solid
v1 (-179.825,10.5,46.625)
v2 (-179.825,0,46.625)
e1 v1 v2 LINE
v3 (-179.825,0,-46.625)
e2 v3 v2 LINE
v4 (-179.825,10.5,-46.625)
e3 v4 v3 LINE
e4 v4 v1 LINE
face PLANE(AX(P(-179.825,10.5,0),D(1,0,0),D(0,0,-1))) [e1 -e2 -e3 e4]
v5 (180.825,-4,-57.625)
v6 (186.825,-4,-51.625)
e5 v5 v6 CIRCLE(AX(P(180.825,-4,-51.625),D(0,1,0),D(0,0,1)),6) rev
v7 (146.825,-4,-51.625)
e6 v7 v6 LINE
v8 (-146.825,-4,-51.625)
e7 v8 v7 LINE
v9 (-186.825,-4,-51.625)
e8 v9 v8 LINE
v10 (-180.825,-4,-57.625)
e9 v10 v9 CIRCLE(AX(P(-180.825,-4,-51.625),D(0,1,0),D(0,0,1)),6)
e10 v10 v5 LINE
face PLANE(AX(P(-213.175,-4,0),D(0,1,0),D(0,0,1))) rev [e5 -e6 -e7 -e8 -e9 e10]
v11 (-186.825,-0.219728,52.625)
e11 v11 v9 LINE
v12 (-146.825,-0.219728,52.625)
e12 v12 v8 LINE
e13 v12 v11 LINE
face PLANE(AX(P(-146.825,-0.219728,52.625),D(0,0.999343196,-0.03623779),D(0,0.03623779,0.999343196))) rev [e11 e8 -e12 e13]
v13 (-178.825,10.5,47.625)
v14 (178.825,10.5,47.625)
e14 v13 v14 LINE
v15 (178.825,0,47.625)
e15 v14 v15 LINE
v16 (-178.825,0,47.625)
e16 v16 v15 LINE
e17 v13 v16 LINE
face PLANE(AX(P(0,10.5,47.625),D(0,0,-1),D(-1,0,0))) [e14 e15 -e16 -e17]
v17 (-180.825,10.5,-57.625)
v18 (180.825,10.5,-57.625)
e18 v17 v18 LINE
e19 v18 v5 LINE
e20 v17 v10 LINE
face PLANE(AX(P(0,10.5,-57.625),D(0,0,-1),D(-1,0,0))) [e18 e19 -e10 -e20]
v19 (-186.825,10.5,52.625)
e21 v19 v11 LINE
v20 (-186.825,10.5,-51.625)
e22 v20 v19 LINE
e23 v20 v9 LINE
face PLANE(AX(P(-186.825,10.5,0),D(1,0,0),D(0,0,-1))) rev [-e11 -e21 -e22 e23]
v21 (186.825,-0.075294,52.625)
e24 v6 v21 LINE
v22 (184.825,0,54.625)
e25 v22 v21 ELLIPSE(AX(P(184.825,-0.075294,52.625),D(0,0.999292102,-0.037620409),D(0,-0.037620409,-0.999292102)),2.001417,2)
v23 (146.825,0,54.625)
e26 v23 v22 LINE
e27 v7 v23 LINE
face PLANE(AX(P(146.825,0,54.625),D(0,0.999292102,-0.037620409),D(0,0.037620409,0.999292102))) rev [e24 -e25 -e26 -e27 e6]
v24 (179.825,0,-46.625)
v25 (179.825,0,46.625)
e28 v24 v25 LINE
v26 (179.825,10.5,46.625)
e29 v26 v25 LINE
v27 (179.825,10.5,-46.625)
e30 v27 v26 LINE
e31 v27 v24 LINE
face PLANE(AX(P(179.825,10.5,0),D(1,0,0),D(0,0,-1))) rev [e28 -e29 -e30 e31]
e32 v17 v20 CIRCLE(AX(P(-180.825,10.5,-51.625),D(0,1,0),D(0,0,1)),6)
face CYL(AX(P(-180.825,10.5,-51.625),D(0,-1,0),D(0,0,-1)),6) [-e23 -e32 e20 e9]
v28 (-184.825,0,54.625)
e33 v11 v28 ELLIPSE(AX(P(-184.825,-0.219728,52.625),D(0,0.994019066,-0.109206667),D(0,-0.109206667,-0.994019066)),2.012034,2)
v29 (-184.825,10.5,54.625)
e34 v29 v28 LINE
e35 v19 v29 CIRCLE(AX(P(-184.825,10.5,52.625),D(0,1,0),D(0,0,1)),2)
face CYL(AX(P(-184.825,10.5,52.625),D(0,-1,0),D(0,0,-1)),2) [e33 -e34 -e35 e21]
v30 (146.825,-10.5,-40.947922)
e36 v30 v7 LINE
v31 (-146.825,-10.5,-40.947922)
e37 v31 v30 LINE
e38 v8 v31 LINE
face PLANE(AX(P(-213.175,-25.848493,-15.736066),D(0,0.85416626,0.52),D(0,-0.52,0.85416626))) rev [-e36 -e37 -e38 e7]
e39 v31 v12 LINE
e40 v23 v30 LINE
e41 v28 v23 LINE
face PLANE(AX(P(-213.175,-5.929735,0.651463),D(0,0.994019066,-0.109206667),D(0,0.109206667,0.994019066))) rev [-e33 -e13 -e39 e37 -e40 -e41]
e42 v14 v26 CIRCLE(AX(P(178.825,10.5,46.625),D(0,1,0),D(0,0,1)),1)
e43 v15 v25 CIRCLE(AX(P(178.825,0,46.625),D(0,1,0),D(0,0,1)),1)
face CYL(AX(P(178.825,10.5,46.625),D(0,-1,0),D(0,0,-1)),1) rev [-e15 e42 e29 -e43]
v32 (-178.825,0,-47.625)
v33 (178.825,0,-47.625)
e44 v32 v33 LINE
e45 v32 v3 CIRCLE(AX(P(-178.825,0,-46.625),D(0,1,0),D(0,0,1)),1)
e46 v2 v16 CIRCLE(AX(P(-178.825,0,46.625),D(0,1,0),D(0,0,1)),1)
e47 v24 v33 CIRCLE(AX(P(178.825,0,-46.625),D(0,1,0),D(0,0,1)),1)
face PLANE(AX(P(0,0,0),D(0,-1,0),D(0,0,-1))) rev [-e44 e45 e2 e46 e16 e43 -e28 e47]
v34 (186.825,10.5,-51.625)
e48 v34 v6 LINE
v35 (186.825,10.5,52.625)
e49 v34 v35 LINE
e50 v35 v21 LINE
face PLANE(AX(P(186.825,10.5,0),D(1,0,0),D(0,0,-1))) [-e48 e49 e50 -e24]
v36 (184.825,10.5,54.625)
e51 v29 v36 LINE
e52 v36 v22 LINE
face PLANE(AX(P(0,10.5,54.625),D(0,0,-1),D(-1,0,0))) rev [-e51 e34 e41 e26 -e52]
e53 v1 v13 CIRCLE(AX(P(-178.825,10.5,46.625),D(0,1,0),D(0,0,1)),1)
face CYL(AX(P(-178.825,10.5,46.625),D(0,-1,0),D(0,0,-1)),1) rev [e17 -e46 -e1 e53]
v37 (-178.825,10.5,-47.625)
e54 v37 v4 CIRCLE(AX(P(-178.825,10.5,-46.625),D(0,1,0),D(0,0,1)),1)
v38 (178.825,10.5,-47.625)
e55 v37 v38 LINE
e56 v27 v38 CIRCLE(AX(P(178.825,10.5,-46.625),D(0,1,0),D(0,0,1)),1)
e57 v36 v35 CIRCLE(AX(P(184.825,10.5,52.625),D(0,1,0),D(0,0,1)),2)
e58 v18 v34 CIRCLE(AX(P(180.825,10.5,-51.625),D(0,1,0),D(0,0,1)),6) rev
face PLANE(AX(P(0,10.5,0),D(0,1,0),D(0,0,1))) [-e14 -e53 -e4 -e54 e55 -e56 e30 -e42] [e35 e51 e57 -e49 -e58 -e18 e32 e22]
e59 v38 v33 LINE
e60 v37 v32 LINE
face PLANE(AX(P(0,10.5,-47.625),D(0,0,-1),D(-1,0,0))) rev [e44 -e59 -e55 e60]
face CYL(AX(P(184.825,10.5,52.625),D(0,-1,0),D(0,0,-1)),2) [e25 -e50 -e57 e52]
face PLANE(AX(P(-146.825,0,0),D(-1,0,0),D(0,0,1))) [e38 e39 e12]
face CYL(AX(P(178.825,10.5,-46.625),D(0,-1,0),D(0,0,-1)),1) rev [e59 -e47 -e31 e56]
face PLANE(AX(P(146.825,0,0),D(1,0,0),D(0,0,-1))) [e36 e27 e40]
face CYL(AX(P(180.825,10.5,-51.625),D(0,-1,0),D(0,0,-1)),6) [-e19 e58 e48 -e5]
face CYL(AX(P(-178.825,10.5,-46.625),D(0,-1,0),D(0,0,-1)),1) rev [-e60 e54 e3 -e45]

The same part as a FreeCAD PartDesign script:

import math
import FreeCAD as App
import Part
import Sketcher
Q = App.Units.Quantity

doc = App.newDocument("Part")
body = doc.addObject("PartDesign::Body", "Body")

sketch1 = body.newObject("Sketcher::SketchObject", "Sketch")
sketch1.AttachmentSupport = (doc.getObject("XZ_Plane"), [""])
sketch1.MapMode = "FlatFace"
sketch1.addGeometry(Part.LineSegment(App.Vector(-186.8, -51.6, 0), App.Vector(-186.8, 52.6, 0)), False)
sketch1.addGeometry(Part.ArcOfCircle(Part.Circle(App.Vector(-184.8, 52.6, 0), App.Vector(0, 0, 1), 2), math.radians(90), math.radians(180)), False)
sketch1.addGeometry(Part.LineSegment(App.Vector(-184.8, 54.6, 0), App.Vector(184.8, 54.6, 0)), False)
sketch1.addGeometry(Part.ArcOfCircle(Part.Circle(App.Vector(184.8, 52.6, 0), App.Vector(0, 0, 1), 2), math.radians(0), math.radians(90)), False)
sketch1.addGeometry(Part.LineSegment(App.Vector(186.8, 52.6, 0), App.Vector(186.8, -51.6, 0)), False)
sketch1.addGeometry(Part.ArcOfCircle(Part.Circle(App.Vector(180.8, -51.6, 0), App.Vector(0, 0, 1), 6), math.radians(-90), math.radians(0)), False)
sketch1.addGeometry(Part.LineSegment(App.Vector(180.8, -57.6, 0), App.Vector(-180.8, -57.6, 0)), False)
sketch1.addGeometry(Part.ArcOfCircle(Part.Circle(App.Vector(-180.8, -51.6, 0), App.Vector(0, 0, 1), 6), math.radians(180), math.radians(270)), False)
sketch1.addGeometry(Part.ArcOfCircle(Part.Circle(App.Vector(-178.8, -46.6, 0), App.Vector(0, 0, 1), 1), math.radians(-180), math.radians(-90)), False)
sketch1.addGeometry(Part.LineSegment(App.Vector(-178.8, -47.6, 0), App.Vector(178.8, -47.6, 0)), False)
sketch1.addGeometry(Part.ArcOfCircle(Part.Circle(App.Vector(178.8, -46.6, 0), App.Vector(0, 0, 1), 1), math.radians(-90), math.radians(0)), False)
sketch1.addGeometry(Part.LineSegment(App.Vector(179.8, -46.6, 0), App.Vector(179.8, 46.6, 0)), False)
sketch1.addGeometry(Part.ArcOfCircle(Part.Circle(App.Vector(178.8, 46.6, 0), App.Vector(0, 0, 1), 1), math.radians(0), math.radians(90)), False)
sketch1.addGeometry(Part.LineSegment(App.Vector(178.8, 47.6, 0), App.Vector(-178.8, 47.6, 0)), False)
sketch1.addGeometry(Part.ArcOfCircle(Part.Circle(App.Vector(-178.8, 46.6, 0), App.Vector(0, 0, 1), 1), math.radians(90), math.radians(180)), False)
sketch1.addGeometry(Part.LineSegment(App.Vector(-179.8, 46.6, 0), App.Vector(-179.8, -46.6, 0)), False)
sketch1.addConstraint(Sketcher.Constraint("Tangent", 0, 2, 1, 2))
sketch1.addConstraint(Sketcher.Constraint("Tangent", 1, 1, 2, 1))
sketch1.addConstraint(Sketcher.Constraint("Tangent", 2, 2, 3, 2))
sketch1.addConstraint(Sketcher.Constraint("Tangent", 3, 1, 4, 1))
sketch1.addConstraint(Sketcher.Constraint("Tangent", 4, 2, 5, 2))
sketch1.addConstraint(Sketcher.Constraint("Tangent", 5, 1, 6, 1))
sketch1.addConstraint(Sketcher.Constraint("Tangent", 6, 2, 7, 2))
sketch1.addConstraint(Sketcher.Constraint("Tangent", 7, 1, 0, 1))
sketch1.addConstraint(Sketcher.Constraint("Tangent", 8, 2, 9, 1))
sketch1.addConstraint(Sketcher.Constraint("Tangent", 9, 2, 10, 1))
sketch1.addConstraint(Sketcher.Constraint("Tangent", 10, 2, 11, 1))
sketch1.addConstraint(Sketcher.Constraint("Tangent", 11, 2, 12, 1))
sketch1.addConstraint(Sketcher.Constraint("Tangent", 12, 2, 13, 1))
sketch1.addConstraint(Sketcher.Constraint("Tangent", 13, 2, 14, 1))
sketch1.addConstraint(Sketcher.Constraint("Tangent", 14, 2, 15, 1))
sketch1.addConstraint(Sketcher.Constraint("Tangent", 15, 2, 8, 1))
sketch1.addConstraint(Sketcher.Constraint("Vertical", 0))
sketch1.addConstraint(Sketcher.Constraint("Horizontal", 2))
sketch1.addConstraint(Sketcher.Constraint("Vertical", 4))
sketch1.addConstraint(Sketcher.Constraint("Horizontal", 6))
sketch1.addConstraint(Sketcher.Constraint("Horizontal", 9))
sketch1.addConstraint(Sketcher.Constraint("Vertical", 11))
sketch1.addConstraint(Sketcher.Constraint("Horizontal", 13))
sketch1.addConstraint(Sketcher.Constraint("Vertical", 15))
sketch1.addConstraint(Sketcher.Constraint("Equal", 1, 3))
sketch1.addConstraint(Sketcher.Constraint("Equal", 5, 7))
sketch1.addConstraint(Sketcher.Constraint("Equal", 8, 10))
sketch1.addConstraint(Sketcher.Constraint("Equal", 10, 12))
sketch1.addConstraint(Sketcher.Constraint("Equal", 12, 14))
sketch1.addConstraint(Sketcher.Constraint("Symmetric", 8, 3, 12, 3, -1, 1))
sketch1.addConstraint(Sketcher.Constraint("Radius", 1, Q("2 mm")))
sketch1.addConstraint(Sketcher.Constraint("Radius", 5, Q("6 mm")))
sketch1.addConstraint(Sketcher.Constraint("Radius", 8, Q("1 mm")))
sketch1.addConstraint(Sketcher.Constraint("DistanceX", 7, 3, 8, 3, Q("2 mm")))
sketch1.addConstraint(Sketcher.Constraint("DistanceY", 7, 3, 8, 3, Q("5 mm")))
sketch1.addConstraint(Sketcher.Constraint("DistanceX", 10, 3, 5, 3, Q("2 mm")))
sketch1.addConstraint(Sketcher.Constraint("DistanceY", 12, 3, 3, 3, Q("6 mm")))
sketch1.addConstraint(Sketcher.Constraint("DistanceX", 2, 1, 2, 2, Q("369.65 mm")))
sketch1.addConstraint(Sketcher.Constraint("DistanceY", 0, 1, 0, 2, Q("104.25 mm")))
pad1 = body.newObject("PartDesign::Pad", "Pad")
pad1.Profile = sketch1
pad1.Length = 10.5
pad1.Reversed = True

sketch2 = body.newObject("Sketcher::SketchObject", "Sketch001")
sketch2.AttachmentSupport = (doc.getObject("XZ_Plane"), [""])
sketch2.MapMode = "FlatFace"
sketch2.AttachmentOffset = App.Placement(App.Vector(0, 0, 10.5), App.Rotation())
sketch2.addGeometry(Part.ArcOfCircle(Part.Circle(App.Vector(-184.8, 52.6, 0), App.Vector(0, 0, 1), 2), math.radians(90), math.radians(180)), False)
sketch2.addGeometry(Part.LineSegment(App.Vector(-186.8, 52.6, 0), App.Vector(-186.8, -51.6, 0)), False)
sketch2.addGeometry(Part.ArcOfCircle(Part.Circle(App.Vector(-180.8, -51.6, 0), App.Vector(0, 0, 1), 6), math.radians(180), math.radians(270)), False)
sketch2.addGeometry(Part.LineSegment(App.Vector(-180.8, -57.6, 0), App.Vector(180.8, -57.6, 0)), False)
sketch2.addGeometry(Part.ArcOfCircle(Part.Circle(App.Vector(180.8, -51.6, 0), App.Vector(0, 0, 1), 6), math.radians(-90), math.radians(0)), False)
sketch2.addGeometry(Part.LineSegment(App.Vector(186.8, -51.6, 0), App.Vector(186.8, 52.6, 0)), False)
sketch2.addGeometry(Part.ArcOfCircle(Part.Circle(App.Vector(184.8, 52.6, 0), App.Vector(0, 0, 1), 2), math.radians(0), math.radians(90)), False)
sketch2.addGeometry(Part.LineSegment(App.Vector(184.8, 54.6, 0), App.Vector(-184.8, 54.6, 0)), False)
sketch2.addConstraint(Sketcher.Constraint("Tangent", 0, 2, 1, 1))
sketch2.addConstraint(Sketcher.Constraint("Tangent", 1, 2, 2, 1))
sketch2.addConstraint(Sketcher.Constraint("Tangent", 2, 2, 3, 1))
sketch2.addConstraint(Sketcher.Constraint("Tangent", 3, 2, 4, 1))
sketch2.addConstraint(Sketcher.Constraint("Tangent", 4, 2, 5, 1))
sketch2.addConstraint(Sketcher.Constraint("Tangent", 5, 2, 6, 1))
sketch2.addConstraint(Sketcher.Constraint("Tangent", 6, 2, 7, 1))
sketch2.addConstraint(Sketcher.Constraint("Tangent", 7, 2, 0, 1))
sketch2.addConstraint(Sketcher.Constraint("Vertical", 1))
sketch2.addConstraint(Sketcher.Constraint("Horizontal", 3))
sketch2.addConstraint(Sketcher.Constraint("Vertical", 5))
sketch2.addConstraint(Sketcher.Constraint("Horizontal", 7))
sketch2.addConstraint(Sketcher.Constraint("Equal", 2, 4))
sketch2.addConstraint(Sketcher.Constraint("Equal", 0, 6))
sketch2.addConstraint(Sketcher.Constraint("Radius", 0, Q("2 mm")))
sketch2.addConstraint(Sketcher.Constraint("Radius", 2, Q("6 mm")))
sketch2.addConstraint(Sketcher.Constraint("DistanceX", 3, 1, 3, 2, Q("361.65 mm")))
sketch2.addConstraint(Sketcher.Constraint("DistanceY", 1, 2, 1, 1, Q("104.25 mm")))
sketch2.addConstraint(Sketcher.Constraint("DistanceX", 0, 3, -1, 1, Q("184.825 mm")))
sketch2.addConstraint(Sketcher.Constraint("DistanceY", -1, 1, 0, 3, Q("52.625 mm")))
pad2 = body.newObject("PartDesign::Pad", "Pad001")
pad2.Profile = sketch2
pad2.Length = 10.5
pad2.Reversed = True

sketch3 = body.newObject("Sketcher::SketchObject", "Sketch002")
sketch3.AttachmentSupport = (doc.getObject("YZ_Plane"), [""])
sketch3.MapMode = "FlatFace"
sketch3.AttachmentOffset = App.Placement(App.Vector(0, 0, 186.825), App.Rotation())
sketch3.addGeometry(Part.LineSegment(App.Vector(-0.2, 52.6, 0), App.Vector(0, 54.6, 0)), False)
sketch3.addGeometry(Part.LineSegment(App.Vector(0, 54.6, 0), App.Vector(-10.5, 54.6, 0)), False)
sketch3.addGeometry(Part.LineSegment(App.Vector(-10.5, 54.6, 0), App.Vector(-10.5, -40.9, 0)), False)
sketch3.addGeometry(Part.LineSegment(App.Vector(-10.5, -40.9, 0), App.Vector(-0.2, 52.6, 0)), False)
sketch3.addGeometry(Part.LineSegment(App.Vector(-4, -51.6, 0), App.Vector(-10.5, -40.9, 0)), False)
sketch3.addGeometry(Part.LineSegment(App.Vector(-10.5, -40.9, 0), App.Vector(-10.5, -57.6, 0)), False)
sketch3.addGeometry(Part.LineSegment(App.Vector(-10.5, -57.6, 0), App.Vector(-4, -57.6, 0)), False)
sketch3.addGeometry(Part.LineSegment(App.Vector(-4, -57.6, 0), App.Vector(-4, -51.6, 0)), False)
sketch3.addConstraint(Sketcher.Constraint("Coincident", 0, 2, 1, 1))
sketch3.addConstraint(Sketcher.Constraint("Coincident", 1, 2, 2, 1))
sketch3.addConstraint(Sketcher.Constraint("Coincident", 2, 2, 3, 1))
sketch3.addConstraint(Sketcher.Constraint("Coincident", 3, 2, 0, 1))
sketch3.addConstraint(Sketcher.Constraint("Coincident", 4, 2, 5, 1))
sketch3.addConstraint(Sketcher.Constraint("Coincident", 5, 2, 6, 1))
sketch3.addConstraint(Sketcher.Constraint("Coincident", 6, 2, 7, 1))
sketch3.addConstraint(Sketcher.Constraint("Coincident", 7, 2, 4, 1))
sketch3.addConstraint(Sketcher.Constraint("Horizontal", 1))
sketch3.addConstraint(Sketcher.Constraint("Vertical", 2))
sketch3.addConstraint(Sketcher.Constraint("Vertical", 5))
sketch3.addConstraint(Sketcher.Constraint("Horizontal", 6))
sketch3.addConstraint(Sketcher.Constraint("Vertical", 7))
sketch3.addConstraint(Sketcher.Constraint("Coincident", 4, 2, 2, 2))
sketch3.addConstraint(Sketcher.Constraint("PointOnObject", 0, 2, -2))
sketch3.addConstraint(Sketcher.Constraint("Parallel", 0, 3))
sketch3.addConstraint(Sketcher.Constraint("DistanceY", 7, 1, 7, 2, Q("6 mm")))
sketch3.addConstraint(Sketcher.Constraint("DistanceX", 1, 2, 1, 1, Q("10.5 mm")))
sketch3.addConstraint(Sketcher.Constraint("DistanceX", 6, 1, 6, 2, Q("6.5 mm")))
sketch3.addConstraint(Sketcher.Constraint("DistanceY", 3, 2, 0, 2, Q("2 mm")))
sketch3.addConstraint(Sketcher.Constraint("Distance", 4, Q("12.5 mm")))
sketch3.addConstraint(Sketcher.Constraint("DistanceY", 5, 2, 3, 2, Q("110.25 mm")))
sketch3.addConstraint(Sketcher.Constraint("DistanceY", -1, 1, 0, 2, Q("54.625 mm")))
pocket1 = body.newObject("PartDesign::Pocket", "Pocket")
pocket1.Profile = sketch3
pocket1.Length = 400

sketch4 = body.newObject("Sketcher::SketchObject", "Sketch003")
sketch4.AttachmentSupport = (doc.getObject("YZ_Plane"), [""])
sketch4.MapMode = "FlatFace"
sketch4.AttachmentOffset = App.Placement(App.Vector(0, 0, 186.825), App.Rotation())
sketch4.addGeometry(Part.LineSegment(App.Vector(-4, -52, 0), App.Vector(0, 55, 0)), False)
sketch4.addGeometry(Part.LineSegment(App.Vector(0, 55, 0), App.Vector(-10, -41, 0)), False)
sketch4.addGeometry(Part.LineSegment(App.Vector(-10, -41, 0), App.Vector(-4, -52, 0)), False)
sketch4.addConstraint(Sketcher.Constraint("Coincident", 0, 2, 1, 1))
sketch4.addConstraint(Sketcher.Constraint("Coincident", 1, 2, 2, 1))
sketch4.addConstraint(Sketcher.Constraint("Coincident", 2, 2, 0, 1))
sketch4.addConstraint(Sketcher.Constraint("PointOnObject", 0, 2, -2))
sketch4.addConstraint(Sketcher.Constraint("DistanceX", 2, 2, -1, 1, Q("4 mm")))
sketch4.addConstraint(Sketcher.Constraint("Distance", 2, Q("12.5 mm")))
sketch4.addConstraint(Sketcher.Constraint("DistanceX", 1, 2, -1, 1, Q("10.5 mm")))
sketch4.addConstraint(Sketcher.Constraint("DistanceY", 2, 2, 0, 2, Q("106.25 mm")))
sketch4.addConstraint(Sketcher.Constraint("DistanceY", -1, 1, 0, 2, Q("54.625 mm")))
pocket2 = body.newObject("PartDesign::Pocket", "Pocket001")
pocket2.Profile = sketch4
pocket2.Length = 40

sketch5 = body.newObject("Sketcher::SketchObject", "Sketch004")
sketch5.AttachmentSupport = (doc.getObject("YZ_Plane"), [""])
sketch5.MapMode = "FlatFace"
sketch5.AttachmentOffset = App.Placement(App.Vector(0, 0, -186.825), App.Rotation())
sketch5.addGeometry(Part.LineSegment(App.Vector(-4, -52, 0), App.Vector(-10, -41, 0)), False)
sketch5.addGeometry(Part.LineSegment(App.Vector(-10, -41, 0), App.Vector(0, 53, 0)), False)
sketch5.addGeometry(Part.LineSegment(App.Vector(0, 53, 0), App.Vector(-4, -52, 0)), False)
sketch5.addConstraint(Sketcher.Constraint("Coincident", 0, 2, 1, 1))
sketch5.addConstraint(Sketcher.Constraint("Coincident", 1, 2, 2, 1))
sketch5.addConstraint(Sketcher.Constraint("Coincident", 2, 2, 0, 1))
sketch5.addConstraint(Sketcher.Constraint("DistanceX", 2, 2, -1, 1, Q("4 mm")))
sketch5.addConstraint(Sketcher.Constraint("Distance", 0, Q("12.5 mm")))
sketch5.addConstraint(Sketcher.Constraint("DistanceX", 0, 2, -1, 1, Q("10.5 mm")))
sketch5.addConstraint(Sketcher.Constraint("DistanceY", 2, 2, 1, 2, Q("104.25 mm")))
sketch5.addConstraint(Sketcher.Constraint("DistanceY", -1, 1, 1, 2, Q("52.625 mm")))
sketch5.addConstraint(Sketcher.Constraint("Distance", 1, Q("94.135943 mm")))
pocket3 = body.newObject("PartDesign::Pocket", "Pocket002")
pocket3.Profile = sketch5
pocket3.Length = 40
pocket3.Reversed = True

doc.recompute()
